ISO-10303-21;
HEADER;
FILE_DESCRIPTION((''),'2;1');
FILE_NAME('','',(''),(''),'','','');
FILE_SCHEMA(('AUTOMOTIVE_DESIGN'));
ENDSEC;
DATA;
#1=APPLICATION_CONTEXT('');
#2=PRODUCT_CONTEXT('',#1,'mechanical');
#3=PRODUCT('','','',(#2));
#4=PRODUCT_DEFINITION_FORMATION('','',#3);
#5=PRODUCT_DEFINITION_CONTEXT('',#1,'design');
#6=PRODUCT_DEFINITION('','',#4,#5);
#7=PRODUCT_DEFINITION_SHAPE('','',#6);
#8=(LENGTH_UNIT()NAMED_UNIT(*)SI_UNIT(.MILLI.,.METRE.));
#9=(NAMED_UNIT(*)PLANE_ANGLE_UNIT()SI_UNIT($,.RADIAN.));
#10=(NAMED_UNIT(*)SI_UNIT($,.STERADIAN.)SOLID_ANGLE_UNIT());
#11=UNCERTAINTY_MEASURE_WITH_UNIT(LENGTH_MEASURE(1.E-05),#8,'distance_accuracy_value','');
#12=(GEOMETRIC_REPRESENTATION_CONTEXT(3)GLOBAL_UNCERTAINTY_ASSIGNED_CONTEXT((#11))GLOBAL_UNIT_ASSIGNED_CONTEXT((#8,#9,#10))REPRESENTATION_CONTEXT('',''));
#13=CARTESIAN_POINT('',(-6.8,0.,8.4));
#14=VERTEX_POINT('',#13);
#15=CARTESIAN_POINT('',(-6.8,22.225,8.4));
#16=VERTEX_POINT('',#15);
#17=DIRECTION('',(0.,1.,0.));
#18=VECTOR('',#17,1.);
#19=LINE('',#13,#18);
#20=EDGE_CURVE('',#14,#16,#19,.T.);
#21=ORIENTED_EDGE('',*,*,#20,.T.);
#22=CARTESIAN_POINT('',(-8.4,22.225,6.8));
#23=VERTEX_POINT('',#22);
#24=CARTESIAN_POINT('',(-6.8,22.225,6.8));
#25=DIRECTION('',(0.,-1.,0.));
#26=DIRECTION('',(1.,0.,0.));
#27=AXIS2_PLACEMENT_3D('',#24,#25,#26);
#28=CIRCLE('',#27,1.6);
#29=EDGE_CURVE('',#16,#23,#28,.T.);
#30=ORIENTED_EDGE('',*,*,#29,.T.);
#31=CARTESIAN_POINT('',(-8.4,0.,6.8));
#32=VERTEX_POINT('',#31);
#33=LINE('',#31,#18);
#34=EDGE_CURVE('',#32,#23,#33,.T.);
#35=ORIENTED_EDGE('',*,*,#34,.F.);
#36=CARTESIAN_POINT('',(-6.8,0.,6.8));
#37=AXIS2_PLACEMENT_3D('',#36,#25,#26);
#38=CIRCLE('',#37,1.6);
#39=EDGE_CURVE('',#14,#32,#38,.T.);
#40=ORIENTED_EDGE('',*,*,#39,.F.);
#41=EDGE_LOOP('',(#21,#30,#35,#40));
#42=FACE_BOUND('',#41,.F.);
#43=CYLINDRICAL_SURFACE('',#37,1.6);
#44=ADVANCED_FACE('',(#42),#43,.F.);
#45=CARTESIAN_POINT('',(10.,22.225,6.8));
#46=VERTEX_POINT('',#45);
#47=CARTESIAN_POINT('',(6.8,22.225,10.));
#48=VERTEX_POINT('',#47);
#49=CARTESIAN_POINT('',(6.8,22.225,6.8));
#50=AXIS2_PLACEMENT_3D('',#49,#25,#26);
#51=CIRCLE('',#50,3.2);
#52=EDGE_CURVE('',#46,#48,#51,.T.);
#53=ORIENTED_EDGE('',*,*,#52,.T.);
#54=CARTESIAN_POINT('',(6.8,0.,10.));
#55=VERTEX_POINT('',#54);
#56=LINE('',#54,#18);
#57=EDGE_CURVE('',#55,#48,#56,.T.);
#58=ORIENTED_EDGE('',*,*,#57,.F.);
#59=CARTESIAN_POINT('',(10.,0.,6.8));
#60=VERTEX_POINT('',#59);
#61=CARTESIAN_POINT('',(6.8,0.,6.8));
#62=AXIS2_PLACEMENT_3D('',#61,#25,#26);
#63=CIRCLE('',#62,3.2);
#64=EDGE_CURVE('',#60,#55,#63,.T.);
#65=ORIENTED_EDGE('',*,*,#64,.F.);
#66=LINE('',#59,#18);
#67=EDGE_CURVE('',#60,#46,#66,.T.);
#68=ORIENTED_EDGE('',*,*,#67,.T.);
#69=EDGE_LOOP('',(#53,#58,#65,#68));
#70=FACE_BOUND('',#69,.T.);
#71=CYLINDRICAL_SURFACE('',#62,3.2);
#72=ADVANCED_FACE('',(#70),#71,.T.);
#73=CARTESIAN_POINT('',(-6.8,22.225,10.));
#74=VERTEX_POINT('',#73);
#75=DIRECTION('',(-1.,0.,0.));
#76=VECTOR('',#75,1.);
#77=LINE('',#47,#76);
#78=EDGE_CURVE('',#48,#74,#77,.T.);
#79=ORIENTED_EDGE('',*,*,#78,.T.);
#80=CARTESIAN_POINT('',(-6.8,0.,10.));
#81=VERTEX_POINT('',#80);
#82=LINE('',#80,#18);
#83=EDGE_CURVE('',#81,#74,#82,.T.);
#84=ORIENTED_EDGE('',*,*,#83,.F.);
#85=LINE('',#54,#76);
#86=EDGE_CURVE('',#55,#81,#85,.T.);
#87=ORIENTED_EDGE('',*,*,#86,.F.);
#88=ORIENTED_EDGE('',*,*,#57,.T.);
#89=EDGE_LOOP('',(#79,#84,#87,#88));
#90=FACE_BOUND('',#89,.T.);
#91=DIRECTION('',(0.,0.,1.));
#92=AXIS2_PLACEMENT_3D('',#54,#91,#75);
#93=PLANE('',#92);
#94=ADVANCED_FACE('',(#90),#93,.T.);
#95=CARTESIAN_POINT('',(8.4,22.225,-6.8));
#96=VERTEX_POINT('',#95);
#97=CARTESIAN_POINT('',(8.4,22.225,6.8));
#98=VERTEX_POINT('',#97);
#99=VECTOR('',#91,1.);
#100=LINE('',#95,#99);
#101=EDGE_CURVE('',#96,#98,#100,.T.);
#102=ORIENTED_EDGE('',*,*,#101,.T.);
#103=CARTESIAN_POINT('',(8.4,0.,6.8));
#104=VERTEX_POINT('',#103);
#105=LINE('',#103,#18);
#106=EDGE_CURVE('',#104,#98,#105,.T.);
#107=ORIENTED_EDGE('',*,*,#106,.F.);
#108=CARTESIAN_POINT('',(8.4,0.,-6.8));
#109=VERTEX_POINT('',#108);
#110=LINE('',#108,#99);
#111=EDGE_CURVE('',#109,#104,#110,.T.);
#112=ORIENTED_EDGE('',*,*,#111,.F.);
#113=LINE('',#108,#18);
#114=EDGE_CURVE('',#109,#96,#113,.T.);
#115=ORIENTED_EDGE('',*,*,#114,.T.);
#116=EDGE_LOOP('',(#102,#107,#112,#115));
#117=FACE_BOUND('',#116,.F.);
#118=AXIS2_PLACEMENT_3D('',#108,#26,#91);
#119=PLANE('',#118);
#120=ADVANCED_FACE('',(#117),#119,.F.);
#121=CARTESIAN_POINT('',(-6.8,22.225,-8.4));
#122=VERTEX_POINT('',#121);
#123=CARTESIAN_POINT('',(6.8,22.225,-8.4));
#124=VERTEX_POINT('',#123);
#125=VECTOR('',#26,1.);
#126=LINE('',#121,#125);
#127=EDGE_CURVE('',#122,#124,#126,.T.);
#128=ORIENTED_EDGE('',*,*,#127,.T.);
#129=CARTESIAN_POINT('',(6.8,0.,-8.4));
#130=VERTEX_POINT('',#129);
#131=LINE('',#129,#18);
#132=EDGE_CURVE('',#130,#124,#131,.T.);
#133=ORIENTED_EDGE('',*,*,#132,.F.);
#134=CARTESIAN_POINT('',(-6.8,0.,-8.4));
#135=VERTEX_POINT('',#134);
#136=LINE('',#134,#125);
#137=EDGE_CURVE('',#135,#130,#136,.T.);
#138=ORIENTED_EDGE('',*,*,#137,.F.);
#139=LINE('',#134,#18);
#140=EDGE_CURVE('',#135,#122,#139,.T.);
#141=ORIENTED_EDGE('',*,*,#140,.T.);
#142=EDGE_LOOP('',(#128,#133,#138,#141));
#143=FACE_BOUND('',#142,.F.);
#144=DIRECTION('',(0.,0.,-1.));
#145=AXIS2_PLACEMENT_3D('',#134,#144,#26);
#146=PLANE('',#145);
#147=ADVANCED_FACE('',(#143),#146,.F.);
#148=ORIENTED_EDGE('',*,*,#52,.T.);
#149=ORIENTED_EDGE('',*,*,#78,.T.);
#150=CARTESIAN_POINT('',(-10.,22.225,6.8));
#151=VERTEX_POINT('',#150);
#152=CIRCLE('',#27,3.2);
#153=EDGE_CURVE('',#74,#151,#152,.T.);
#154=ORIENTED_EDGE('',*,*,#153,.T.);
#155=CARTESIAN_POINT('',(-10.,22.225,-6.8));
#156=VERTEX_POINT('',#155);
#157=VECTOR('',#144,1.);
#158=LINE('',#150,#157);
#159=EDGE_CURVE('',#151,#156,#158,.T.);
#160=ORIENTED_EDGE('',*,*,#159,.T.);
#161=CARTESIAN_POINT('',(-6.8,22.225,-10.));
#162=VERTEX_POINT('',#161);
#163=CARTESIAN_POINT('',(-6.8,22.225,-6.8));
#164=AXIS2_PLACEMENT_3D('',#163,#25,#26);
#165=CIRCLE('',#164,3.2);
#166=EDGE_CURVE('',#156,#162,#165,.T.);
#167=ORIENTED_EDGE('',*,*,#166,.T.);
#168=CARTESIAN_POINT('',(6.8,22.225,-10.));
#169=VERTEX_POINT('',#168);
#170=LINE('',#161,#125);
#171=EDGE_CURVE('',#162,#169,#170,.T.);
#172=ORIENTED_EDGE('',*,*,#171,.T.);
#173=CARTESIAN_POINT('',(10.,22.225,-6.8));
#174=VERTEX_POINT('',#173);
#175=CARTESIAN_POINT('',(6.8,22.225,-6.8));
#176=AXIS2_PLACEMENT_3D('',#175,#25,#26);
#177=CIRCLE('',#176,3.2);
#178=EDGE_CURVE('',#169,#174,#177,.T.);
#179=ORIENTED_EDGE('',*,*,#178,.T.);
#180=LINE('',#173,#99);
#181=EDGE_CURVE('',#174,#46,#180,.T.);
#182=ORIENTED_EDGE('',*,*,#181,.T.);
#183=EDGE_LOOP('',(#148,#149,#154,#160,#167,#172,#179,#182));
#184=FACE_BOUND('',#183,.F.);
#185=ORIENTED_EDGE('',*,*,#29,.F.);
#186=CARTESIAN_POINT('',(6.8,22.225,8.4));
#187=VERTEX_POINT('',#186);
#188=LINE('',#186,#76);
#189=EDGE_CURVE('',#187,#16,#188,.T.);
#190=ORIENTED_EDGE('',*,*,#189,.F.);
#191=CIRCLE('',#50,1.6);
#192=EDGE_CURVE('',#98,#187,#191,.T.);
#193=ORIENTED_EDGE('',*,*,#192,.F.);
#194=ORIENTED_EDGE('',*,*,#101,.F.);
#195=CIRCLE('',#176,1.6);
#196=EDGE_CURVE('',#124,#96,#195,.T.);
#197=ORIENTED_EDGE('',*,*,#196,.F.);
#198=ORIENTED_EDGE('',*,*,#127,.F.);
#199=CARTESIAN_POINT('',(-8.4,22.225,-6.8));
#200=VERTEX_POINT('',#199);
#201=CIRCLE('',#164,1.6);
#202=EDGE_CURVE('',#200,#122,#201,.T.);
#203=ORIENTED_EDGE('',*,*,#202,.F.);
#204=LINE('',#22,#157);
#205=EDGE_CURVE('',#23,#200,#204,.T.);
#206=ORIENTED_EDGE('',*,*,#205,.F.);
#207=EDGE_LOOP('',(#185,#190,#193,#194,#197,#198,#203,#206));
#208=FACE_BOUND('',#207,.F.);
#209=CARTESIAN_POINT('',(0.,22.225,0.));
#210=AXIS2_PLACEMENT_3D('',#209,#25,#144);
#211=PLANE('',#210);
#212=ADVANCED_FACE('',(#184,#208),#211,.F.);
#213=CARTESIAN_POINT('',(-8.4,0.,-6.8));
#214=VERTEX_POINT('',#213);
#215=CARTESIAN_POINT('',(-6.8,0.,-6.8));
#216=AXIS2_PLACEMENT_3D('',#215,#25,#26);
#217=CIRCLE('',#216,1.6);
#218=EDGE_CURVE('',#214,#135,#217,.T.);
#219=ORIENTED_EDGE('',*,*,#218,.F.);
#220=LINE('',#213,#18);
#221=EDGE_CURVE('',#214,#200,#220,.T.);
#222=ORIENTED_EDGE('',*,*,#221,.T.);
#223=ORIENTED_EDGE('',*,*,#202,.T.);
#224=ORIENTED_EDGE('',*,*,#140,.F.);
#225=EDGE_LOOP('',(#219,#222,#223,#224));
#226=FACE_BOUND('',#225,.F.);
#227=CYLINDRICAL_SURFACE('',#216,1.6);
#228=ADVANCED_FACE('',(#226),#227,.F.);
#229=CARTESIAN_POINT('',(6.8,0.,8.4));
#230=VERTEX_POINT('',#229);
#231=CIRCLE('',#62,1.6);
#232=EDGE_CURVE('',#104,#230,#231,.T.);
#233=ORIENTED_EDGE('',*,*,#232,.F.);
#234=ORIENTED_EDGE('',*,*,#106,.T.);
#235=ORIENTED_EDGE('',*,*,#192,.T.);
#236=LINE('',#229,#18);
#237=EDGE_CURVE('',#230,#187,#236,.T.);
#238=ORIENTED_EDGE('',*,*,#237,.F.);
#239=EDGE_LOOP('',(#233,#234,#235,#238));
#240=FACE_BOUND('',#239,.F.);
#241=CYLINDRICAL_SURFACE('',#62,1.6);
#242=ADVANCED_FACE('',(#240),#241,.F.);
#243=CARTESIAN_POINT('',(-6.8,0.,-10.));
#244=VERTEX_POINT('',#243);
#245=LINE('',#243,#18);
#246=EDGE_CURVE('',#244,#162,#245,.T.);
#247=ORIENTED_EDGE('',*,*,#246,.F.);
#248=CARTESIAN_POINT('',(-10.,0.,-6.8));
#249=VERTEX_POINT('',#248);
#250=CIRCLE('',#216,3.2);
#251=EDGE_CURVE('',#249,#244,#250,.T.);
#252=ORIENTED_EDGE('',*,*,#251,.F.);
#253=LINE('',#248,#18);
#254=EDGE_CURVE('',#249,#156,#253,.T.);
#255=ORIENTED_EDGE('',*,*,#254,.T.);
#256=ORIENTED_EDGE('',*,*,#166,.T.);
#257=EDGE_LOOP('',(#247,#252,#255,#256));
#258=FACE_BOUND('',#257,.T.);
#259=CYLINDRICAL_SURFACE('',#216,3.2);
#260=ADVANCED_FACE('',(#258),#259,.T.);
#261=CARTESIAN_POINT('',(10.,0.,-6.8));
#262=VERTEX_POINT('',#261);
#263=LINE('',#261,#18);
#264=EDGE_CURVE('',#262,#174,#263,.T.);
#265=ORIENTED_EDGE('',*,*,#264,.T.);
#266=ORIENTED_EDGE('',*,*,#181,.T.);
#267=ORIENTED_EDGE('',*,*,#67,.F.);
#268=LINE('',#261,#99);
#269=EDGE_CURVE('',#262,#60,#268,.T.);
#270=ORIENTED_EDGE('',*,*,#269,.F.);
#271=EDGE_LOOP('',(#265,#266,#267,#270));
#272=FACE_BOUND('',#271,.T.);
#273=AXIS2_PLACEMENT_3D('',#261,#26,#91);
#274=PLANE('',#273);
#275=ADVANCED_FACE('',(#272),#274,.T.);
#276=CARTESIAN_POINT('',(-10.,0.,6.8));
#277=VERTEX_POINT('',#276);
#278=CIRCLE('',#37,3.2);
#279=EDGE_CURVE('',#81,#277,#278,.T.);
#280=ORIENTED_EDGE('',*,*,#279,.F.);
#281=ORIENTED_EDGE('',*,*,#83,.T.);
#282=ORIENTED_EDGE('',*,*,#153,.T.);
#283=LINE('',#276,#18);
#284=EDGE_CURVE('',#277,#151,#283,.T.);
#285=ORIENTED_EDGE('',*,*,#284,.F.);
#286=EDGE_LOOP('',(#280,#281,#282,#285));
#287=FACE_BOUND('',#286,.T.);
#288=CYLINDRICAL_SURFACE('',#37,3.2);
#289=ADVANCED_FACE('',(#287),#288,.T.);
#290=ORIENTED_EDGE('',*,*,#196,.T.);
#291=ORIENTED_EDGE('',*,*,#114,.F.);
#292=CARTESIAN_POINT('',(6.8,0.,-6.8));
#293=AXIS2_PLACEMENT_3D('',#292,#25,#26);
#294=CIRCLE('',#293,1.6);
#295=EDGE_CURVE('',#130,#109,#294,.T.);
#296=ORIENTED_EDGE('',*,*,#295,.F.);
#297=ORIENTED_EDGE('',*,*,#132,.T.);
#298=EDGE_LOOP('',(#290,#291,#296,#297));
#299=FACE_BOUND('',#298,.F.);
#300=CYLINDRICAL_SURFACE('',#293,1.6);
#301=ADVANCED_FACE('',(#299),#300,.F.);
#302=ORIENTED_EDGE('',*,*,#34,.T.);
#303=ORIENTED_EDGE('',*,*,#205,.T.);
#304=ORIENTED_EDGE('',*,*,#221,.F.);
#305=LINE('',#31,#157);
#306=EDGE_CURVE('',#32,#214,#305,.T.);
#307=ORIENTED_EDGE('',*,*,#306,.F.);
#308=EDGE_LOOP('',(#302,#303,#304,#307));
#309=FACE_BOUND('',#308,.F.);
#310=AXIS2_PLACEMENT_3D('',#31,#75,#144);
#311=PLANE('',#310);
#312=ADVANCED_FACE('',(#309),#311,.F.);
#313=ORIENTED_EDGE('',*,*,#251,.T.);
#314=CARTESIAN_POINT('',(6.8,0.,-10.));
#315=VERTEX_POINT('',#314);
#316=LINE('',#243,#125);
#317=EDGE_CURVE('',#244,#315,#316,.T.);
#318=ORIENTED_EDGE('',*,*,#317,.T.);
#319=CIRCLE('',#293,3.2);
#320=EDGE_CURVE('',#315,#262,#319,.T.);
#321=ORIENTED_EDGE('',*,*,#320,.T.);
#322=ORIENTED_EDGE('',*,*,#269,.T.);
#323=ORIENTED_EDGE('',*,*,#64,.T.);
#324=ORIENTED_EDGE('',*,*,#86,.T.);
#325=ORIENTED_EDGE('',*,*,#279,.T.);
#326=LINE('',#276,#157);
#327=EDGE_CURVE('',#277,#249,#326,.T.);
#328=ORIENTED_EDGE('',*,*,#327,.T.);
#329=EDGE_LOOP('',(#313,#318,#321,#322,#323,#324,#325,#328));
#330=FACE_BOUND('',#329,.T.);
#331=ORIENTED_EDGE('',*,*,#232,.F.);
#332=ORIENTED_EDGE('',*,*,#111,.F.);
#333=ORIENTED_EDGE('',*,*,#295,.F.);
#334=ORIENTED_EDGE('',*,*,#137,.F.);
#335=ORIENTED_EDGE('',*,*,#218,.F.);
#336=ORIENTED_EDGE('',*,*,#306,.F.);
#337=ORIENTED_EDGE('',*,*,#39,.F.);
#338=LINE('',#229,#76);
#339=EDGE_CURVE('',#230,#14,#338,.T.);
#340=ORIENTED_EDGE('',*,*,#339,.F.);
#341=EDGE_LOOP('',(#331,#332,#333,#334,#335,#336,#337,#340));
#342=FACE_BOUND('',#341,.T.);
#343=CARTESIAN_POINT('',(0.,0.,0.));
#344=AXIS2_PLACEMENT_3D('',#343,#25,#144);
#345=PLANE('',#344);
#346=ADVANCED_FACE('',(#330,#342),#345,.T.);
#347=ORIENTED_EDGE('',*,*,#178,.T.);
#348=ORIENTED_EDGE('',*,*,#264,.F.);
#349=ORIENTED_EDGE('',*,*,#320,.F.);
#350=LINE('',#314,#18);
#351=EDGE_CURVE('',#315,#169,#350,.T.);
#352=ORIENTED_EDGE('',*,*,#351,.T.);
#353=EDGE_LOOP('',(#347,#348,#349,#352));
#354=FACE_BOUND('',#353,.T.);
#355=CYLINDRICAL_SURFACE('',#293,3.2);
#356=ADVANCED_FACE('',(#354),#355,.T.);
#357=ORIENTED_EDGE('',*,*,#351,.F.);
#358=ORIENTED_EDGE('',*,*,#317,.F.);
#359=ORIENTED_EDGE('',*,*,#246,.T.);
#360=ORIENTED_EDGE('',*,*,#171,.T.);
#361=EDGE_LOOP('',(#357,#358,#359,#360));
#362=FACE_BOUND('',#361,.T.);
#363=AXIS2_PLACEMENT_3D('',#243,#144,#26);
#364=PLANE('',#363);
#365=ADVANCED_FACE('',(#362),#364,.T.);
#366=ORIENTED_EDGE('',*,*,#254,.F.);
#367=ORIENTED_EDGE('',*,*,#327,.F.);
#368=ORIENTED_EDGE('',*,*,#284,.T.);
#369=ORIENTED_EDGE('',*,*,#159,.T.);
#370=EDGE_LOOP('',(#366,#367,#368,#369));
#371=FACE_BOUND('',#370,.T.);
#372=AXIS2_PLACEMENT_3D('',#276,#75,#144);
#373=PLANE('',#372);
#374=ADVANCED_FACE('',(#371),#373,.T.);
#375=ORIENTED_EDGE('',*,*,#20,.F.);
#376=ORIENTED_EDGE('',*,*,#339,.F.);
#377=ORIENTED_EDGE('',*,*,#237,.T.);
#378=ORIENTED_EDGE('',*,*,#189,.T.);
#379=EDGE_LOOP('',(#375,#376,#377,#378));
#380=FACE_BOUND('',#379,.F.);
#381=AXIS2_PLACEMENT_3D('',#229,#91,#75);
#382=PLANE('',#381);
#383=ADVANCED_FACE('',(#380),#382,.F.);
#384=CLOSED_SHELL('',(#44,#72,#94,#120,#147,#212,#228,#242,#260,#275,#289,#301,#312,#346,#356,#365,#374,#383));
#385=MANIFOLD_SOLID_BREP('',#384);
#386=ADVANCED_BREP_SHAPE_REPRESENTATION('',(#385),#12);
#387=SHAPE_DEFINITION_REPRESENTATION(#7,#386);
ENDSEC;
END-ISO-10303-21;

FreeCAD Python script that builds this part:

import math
import FreeCAD as App
import Part
import Sketcher
from FreeCAD import Vector
Q = App.Units.Quantity

doc = App.newDocument("Part")
params = doc.addObject("Spreadsheet::Sheet", "Params")
for row, (alias, value) in enumerate([
    ("sketch1_radius", "3.2 mm"),
    ("sketch1_radius2", "1.6 mm"),
    ("pad1_length", "22.225 mm"),
], start=1):
    params.set(f"A{row}", alias)
    params.set(f"B{row}", "=" + value)
    params.setAlias(f"B{row}", alias)

body = doc.addObject("PartDesign::Body", "Body")

sketch1 = body.newObject("Sketcher::SketchObject", "Sketch")
sketch1.AttachmentSupport = (doc.getObject("XZ_Plane"), [""])
sketch1.MapMode = "FlatFace"
sketch1.addGeometry(Part.LineSegment(Vector(6.8, 10, 0), Vector(-6.8, 10, 0)), False)
sketch1.addGeometry(Part.ArcOfCircle(Part.Circle(Vector(-6.8, 6.8, 0), Vector(0, 0, 1), 3.2), math.radians(90), math.radians(180)), False)
sketch1.addGeometry(Part.LineSegment(Vector(-10, 6.8, 0), Vector(-10, -6.8, 0)), False)
sketch1.addGeometry(Part.ArcOfCircle(Part.Circle(Vector(-6.8, -6.8, 0), Vector(0, 0, 1), 3.2), math.radians(180), math.radians(270)), False)
sketch1.addGeometry(Part.LineSegment(Vector(-6.8, -10, 0), Vector(6.8, -10, 0)), False)
sketch1.addGeometry(Part.ArcOfCircle(Part.Circle(Vector(6.8, -6.8, 0), Vector(0, 0, 1), 3.2), math.radians(-90), math.radians(0)), False)
sketch1.addGeometry(Part.LineSegment(Vector(10, -6.8, 0), Vector(10, 6.8, 0)), False)
sketch1.addGeometry(Part.ArcOfCircle(Part.Circle(Vector(6.8, 6.8, 0), Vector(0, 0, 1), 3.2), math.radians(0), math.radians(90)), False)
sketch1.addGeometry(Part.LineSegment(Vector(-6.8, 8.4, 0), Vector(6.8, 8.4, 0)), False)
sketch1.addGeometry(Part.ArcOfCircle(Part.Circle(Vector(6.8, 6.8, 0), Vector(0, 0, 1), 1.6), math.radians(0), math.radians(90)), False)
sketch1.addGeometry(Part.LineSegment(Vector(8.4, 6.8, 0), Vector(8.4, -6.8, 0)), False)
sketch1.addGeometry(Part.ArcOfCircle(Part.Circle(Vector(6.8, -6.8, 0), Vector(0, 0, 1), 1.6), math.radians(-90), math.radians(0)), False)
sketch1.addGeometry(Part.LineSegment(Vector(6.8, -8.4, 0), Vector(-6.8, -8.4, 0)), False)
sketch1.addGeometry(Part.ArcOfCircle(Part.Circle(Vector(-6.8, -6.8, 0), Vector(0, 0, 1), 1.6), math.radians(180), math.radians(270)), False)
sketch1.addGeometry(Part.LineSegment(Vector(-8.4, -6.8, 0), Vector(-8.4, 6.8, 0)), False)
sketch1.addGeometry(Part.ArcOfCircle(Part.Circle(Vector(-6.8, 6.8, 0), Vector(0, 0, 1), 1.6), math.radians(90), math.radians(180)), False)
sketch1.addConstraint(Sketcher.Constraint("Tangent", 0, 2, 1, 1))
sketch1.addConstraint(Sketcher.Constraint("Tangent", 1, 2, 2, 1))
sketch1.addConstraint(Sketcher.Constraint("Tangent", 2, 2, 3, 1))
sketch1.addConstraint(Sketcher.Constraint("Tangent", 3, 2, 4, 1))
sketch1.addConstraint(Sketcher.Constraint("Tangent", 4, 2, 5, 1))
sketch1.addConstraint(Sketcher.Constraint("Tangent", 5, 2, 6, 1))
sketch1.addConstraint(Sketcher.Constraint("Tangent", 6, 2, 7, 1))
sketch1.addConstraint(Sketcher.Constraint("Tangent", 7, 2, 0, 1))
sketch1.addConstraint(Sketcher.Constraint("Tangent", 8, 2, 9, 2))
sketch1.addConstraint(Sketcher.Constraint("Tangent", 9, 1, 10, 1))
sketch1.addConstraint(Sketcher.Constraint("Tangent", 10, 2, 11, 2))
sketch1.addConstraint(Sketcher.Constraint("Tangent", 11, 1, 12, 1))
sketch1.addConstraint(Sketcher.Constraint("Tangent", 12, 2, 13, 2))
sketch1.addConstraint(Sketcher.Constraint("Tangent", 13, 1, 14, 1))
sketch1.addConstraint(Sketcher.Constraint("Tangent", 14, 2, 15, 2))
sketch1.addConstraint(Sketcher.Constraint("Tangent", 15, 1, 8, 1))
sketch1.addConstraint(Sketcher.Constraint("Horizontal", 0))
sketch1.addConstraint(Sketcher.Constraint("Vertical", 2))
sketch1.addConstraint(Sketcher.Constraint("Horizontal", 4))
sketch1.addConstraint(Sketcher.Constraint("Vertical", 6))
sketch1.addConstraint(Sketcher.Constraint("Horizontal", 8))
sketch1.addConstraint(Sketcher.Constraint("Vertical", 10))
sketch1.addConstraint(Sketcher.Constraint("Horizontal", 12))
sketch1.addConstraint(Sketcher.Constraint("Vertical", 14))
sketch1.addConstraint(Sketcher.Constraint("Coincident", 9, 3, 7, 3))
sketch1.addConstraint(Sketcher.Constraint("Coincident", 11, 3, 5, 3))
sketch1.addConstraint(Sketcher.Constraint("Coincident", 13, 3, 3, 3))
sketch1.addConstraint(Sketcher.Constraint("Equal", 1, 3))
sketch1.addConstraint(Sketcher.Constraint("Equal", 3, 5))
sketch1.addConstraint(Sketcher.Constraint("Equal", 5, 7))
sketch1.addConstraint(Sketcher.Constraint("Equal", 13, 15))
sketch1.addConstraint(Sketcher.Constraint("Symmetric", 1, 3, 5, 3, -1, 1))
sketch1.addConstraint(Sketcher.Constraint("Equal", 12, 2))
sketch1.addConstraint(Sketcher.Constraint("DistanceY", -1, 1, 0, 2, Q("10 mm")))
sketch1.addConstraint(Sketcher.Constraint("Radius", 1, Q("3.2 mm")))
sketch1.addConstraint(Sketcher.Constraint("Radius", 9, Q("1.6 mm")))
sketch1.setExpression("Constraints[34]", "Params.sketch1_radius")
sketch1.setExpression("Constraints[35]", "Params.sketch1_radius2")
pad1 = body.newObject("PartDesign::Pad", "Pad")
pad1.Profile = sketch1
pad1.setExpression("Length", "Params.pad1_length")
pad1.Reversed = True

doc.recompute()
